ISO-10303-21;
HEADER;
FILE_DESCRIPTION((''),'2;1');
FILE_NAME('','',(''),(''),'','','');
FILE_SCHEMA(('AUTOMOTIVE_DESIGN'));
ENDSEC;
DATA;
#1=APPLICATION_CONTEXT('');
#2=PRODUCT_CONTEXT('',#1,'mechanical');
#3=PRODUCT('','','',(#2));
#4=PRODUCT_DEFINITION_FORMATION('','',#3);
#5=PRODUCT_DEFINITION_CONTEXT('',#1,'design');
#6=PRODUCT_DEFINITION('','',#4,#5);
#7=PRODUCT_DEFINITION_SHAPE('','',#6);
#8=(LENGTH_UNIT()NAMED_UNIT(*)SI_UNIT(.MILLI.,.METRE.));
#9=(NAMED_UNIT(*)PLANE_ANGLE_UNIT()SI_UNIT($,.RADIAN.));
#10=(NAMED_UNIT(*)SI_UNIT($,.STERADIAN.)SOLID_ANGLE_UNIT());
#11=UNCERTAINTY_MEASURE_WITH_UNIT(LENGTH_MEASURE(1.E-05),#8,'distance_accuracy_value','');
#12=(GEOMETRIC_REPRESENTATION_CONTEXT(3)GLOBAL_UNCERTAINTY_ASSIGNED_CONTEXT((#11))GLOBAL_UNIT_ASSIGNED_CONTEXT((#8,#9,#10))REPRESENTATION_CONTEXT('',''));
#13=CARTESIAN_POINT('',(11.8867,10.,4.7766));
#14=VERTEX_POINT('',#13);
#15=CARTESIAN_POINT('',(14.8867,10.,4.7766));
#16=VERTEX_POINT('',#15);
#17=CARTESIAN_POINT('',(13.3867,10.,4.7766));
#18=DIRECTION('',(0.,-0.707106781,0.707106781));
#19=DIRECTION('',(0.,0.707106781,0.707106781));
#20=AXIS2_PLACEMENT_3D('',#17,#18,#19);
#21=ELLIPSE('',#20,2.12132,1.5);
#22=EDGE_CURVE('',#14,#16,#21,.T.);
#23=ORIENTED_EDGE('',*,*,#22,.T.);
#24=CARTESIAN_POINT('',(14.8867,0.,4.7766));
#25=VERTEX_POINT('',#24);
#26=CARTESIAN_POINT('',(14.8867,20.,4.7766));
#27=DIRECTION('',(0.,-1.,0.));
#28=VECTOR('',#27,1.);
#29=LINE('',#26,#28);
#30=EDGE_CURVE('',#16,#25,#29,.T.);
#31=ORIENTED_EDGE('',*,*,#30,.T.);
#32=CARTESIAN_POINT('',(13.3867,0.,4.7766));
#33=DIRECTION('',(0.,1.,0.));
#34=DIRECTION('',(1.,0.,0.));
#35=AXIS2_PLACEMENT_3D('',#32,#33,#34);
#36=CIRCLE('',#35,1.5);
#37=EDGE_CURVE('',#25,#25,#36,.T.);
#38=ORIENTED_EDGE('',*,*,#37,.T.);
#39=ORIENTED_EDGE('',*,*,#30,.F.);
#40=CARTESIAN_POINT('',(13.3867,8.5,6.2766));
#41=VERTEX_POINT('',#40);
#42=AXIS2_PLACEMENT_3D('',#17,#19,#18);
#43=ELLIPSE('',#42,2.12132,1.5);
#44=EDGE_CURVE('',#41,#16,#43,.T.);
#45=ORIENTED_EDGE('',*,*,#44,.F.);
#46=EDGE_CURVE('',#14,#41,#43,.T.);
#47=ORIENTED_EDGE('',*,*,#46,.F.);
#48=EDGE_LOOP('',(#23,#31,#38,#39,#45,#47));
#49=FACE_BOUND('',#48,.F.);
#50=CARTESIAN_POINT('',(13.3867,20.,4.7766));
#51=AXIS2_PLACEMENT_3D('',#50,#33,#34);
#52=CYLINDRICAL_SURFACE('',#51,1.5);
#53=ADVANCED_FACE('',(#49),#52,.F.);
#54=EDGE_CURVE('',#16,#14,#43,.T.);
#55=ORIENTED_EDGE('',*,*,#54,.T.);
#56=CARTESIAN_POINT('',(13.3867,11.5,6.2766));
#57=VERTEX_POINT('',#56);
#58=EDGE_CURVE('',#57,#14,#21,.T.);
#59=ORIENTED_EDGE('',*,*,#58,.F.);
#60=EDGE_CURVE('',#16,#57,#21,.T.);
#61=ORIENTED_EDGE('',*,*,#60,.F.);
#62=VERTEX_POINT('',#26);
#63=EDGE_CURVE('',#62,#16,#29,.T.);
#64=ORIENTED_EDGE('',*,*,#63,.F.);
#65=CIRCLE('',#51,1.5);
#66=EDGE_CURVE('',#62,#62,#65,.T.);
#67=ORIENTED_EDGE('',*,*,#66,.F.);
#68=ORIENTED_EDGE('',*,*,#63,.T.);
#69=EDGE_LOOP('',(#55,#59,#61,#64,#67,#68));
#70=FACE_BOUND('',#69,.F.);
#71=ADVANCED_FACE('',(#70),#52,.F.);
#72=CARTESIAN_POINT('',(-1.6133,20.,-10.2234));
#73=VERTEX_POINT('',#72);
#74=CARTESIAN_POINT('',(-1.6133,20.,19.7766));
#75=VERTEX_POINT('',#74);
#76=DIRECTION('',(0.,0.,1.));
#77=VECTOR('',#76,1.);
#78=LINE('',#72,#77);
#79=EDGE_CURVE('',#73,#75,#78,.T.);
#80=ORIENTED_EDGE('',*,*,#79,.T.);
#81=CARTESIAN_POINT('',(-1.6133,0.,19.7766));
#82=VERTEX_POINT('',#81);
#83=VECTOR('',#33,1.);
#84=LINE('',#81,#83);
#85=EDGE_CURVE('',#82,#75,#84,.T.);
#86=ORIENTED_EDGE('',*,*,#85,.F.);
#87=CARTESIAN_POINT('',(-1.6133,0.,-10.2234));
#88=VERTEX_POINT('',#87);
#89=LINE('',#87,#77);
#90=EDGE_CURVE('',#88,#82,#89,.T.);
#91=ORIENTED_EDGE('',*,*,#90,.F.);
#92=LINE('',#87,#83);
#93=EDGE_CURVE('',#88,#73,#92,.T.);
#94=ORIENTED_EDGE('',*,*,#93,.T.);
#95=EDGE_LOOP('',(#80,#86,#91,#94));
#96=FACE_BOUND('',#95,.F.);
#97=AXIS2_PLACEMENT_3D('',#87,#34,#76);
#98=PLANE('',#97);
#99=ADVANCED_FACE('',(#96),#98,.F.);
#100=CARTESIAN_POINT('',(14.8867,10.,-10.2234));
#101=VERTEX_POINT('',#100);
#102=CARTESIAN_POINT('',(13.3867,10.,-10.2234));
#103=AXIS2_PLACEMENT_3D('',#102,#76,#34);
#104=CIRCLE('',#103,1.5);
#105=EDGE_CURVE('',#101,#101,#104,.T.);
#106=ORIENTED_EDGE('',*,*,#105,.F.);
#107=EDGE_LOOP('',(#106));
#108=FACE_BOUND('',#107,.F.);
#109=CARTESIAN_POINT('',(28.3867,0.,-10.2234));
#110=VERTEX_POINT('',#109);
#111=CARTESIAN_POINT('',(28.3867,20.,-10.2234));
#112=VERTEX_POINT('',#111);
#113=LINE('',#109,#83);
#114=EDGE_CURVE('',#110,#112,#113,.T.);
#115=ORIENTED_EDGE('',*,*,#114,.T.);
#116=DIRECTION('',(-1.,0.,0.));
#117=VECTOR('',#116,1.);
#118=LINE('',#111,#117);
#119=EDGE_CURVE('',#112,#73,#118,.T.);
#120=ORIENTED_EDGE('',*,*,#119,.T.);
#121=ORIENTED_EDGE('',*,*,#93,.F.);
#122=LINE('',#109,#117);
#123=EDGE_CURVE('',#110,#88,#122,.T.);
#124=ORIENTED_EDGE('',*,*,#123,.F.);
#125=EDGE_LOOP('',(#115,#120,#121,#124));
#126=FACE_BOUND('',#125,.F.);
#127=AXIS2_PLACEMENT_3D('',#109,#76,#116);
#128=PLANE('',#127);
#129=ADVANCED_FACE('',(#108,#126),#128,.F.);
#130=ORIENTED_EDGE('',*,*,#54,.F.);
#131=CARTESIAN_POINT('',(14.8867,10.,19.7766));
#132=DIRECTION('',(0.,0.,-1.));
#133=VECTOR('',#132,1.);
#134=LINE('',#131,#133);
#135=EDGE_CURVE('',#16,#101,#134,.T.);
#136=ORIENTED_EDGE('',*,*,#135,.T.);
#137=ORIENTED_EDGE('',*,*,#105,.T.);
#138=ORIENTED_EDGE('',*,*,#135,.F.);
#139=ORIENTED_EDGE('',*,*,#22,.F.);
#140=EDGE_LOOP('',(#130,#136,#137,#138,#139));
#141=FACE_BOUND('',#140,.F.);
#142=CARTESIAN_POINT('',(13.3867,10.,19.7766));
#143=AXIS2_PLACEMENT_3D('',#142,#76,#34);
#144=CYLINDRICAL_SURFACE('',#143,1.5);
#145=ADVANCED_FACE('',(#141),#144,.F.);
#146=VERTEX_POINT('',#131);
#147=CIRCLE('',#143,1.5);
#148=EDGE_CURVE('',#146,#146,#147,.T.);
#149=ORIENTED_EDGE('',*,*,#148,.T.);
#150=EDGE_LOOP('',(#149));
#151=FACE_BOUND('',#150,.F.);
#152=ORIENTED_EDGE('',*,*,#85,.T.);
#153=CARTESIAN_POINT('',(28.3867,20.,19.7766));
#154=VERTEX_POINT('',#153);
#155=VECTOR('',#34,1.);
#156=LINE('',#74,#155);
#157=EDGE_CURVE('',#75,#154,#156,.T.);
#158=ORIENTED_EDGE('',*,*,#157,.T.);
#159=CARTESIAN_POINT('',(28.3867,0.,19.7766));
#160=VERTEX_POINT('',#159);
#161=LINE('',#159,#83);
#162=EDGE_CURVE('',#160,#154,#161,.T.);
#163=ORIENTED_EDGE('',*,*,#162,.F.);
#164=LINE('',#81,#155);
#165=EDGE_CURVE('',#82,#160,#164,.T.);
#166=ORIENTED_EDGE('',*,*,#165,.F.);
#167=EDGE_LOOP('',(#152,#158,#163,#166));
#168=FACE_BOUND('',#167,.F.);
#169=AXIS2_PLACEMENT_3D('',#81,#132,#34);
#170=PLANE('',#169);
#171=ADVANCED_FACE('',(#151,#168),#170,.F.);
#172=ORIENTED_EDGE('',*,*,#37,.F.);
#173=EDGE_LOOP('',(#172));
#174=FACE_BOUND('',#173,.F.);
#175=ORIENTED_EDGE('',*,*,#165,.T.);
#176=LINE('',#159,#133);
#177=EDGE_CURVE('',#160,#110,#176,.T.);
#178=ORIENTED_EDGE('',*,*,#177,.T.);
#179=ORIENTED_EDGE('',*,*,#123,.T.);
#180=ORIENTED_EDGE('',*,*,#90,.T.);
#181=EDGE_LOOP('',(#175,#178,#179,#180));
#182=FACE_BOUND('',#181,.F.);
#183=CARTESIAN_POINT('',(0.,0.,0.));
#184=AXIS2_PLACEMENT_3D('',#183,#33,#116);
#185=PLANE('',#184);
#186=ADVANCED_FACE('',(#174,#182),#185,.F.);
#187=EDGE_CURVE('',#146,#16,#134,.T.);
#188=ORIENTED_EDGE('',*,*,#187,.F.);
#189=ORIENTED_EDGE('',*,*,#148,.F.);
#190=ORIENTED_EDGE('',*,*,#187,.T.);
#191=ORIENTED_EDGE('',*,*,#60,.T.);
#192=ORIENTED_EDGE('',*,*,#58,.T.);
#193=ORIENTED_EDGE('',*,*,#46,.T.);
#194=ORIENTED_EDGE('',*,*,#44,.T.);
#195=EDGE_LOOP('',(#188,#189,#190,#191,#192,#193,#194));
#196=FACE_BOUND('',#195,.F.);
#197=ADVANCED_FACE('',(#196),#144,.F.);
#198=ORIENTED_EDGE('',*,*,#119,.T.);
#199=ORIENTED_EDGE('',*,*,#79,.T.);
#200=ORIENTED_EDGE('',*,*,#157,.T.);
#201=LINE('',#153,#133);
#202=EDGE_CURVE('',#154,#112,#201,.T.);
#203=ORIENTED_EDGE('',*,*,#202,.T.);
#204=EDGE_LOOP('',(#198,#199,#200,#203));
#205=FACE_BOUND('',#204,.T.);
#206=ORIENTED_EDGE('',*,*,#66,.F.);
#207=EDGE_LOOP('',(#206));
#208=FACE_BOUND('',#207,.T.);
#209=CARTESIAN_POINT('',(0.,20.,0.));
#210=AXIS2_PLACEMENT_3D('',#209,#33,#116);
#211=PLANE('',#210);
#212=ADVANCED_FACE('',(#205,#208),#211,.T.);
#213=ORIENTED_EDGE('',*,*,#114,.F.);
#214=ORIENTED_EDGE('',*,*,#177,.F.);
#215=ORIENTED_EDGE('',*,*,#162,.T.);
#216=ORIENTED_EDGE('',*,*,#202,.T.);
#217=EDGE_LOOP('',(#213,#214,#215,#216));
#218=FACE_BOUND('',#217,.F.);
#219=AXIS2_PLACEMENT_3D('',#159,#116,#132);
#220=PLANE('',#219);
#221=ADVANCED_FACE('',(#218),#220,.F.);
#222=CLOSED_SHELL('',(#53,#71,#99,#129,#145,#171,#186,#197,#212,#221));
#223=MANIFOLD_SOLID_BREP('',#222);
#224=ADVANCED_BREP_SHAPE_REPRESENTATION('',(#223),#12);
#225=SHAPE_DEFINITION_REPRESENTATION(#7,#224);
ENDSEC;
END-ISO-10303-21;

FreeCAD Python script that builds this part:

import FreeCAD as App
import Part
import Sketcher
from FreeCAD import Vector
Q = App.Units.Quantity

doc = App.newDocument("Part")
body = doc.addObject("PartDesign::Body", "Body")

# Sketch on XZ plane
sketch1 = body.newObject("Sketcher::SketchObject", "Sketch")
sketch1.AttachmentSupport = (doc.getObject("XZ_Plane"), [""])
sketch1.MapMode = "FlatFace"
sketch1.addGeometry([
    Part.LineSegment(Vector(-2, -10, 0), Vector(-2, 20, 0)),
    Part.LineSegment(Vector(-2, 20, 0), Vector(28, 20, 0)),
    Part.LineSegment(Vector(28, 20, 0), Vector(28, -10, 0)),
    Part.LineSegment(Vector(28, -10, 0), Vector(-2, -10, 0)),
], False)
sketch1.addConstraint([
    Sketcher.Constraint("Coincident", 0, 2, 1, 1),
    Sketcher.Constraint("Coincident", 1, 2, 2, 1),
    Sketcher.Constraint("Coincident", 2, 2, 3, 1),
    Sketcher.Constraint("Coincident", 3, 2, 0, 1),
    Sketcher.Constraint("Vertical", 0),
    Sketcher.Constraint("Horizontal", 1),
    Sketcher.Constraint("Vertical", 2),
    Sketcher.Constraint("Horizontal", 3),
    Sketcher.Constraint("Equal", 3, 0),
    Sketcher.Constraint("DistanceX", 1, 1, 1, 2, Q("30 mm")),
    Sketcher.Constraint("DistanceX", 0, 2, -1, 1, Q("1.6133 mm")),
    Sketcher.Constraint("DistanceY", -1, 1, 0, 2, Q("19.7766 mm")),
])
pad1 = body.newObject("PartDesign::Pad", "Pad")
pad1.Profile = sketch1
pad1.Length = 20
pad1.Reversed = True

# Sketch on XY plane
sketch2 = body.newObject("Sketcher::SketchObject", "Sketch001")
sketch2.AttachmentSupport = (doc.getObject("XY_Plane"), [""])
sketch2.MapMode = "FlatFace"
sketch2.AttachmentOffset = App.Placement(Vector(0, 0, 19.7766), App.Rotation())
sketch2.addGeometry(Part.Circle(Vector(13.4, 10, 0), Vector(0, 0, 1), 1.5), False)
sketch2.addConstraint([
    Sketcher.Constraint("Diameter", 0, Q("3 mm")),
    Sketcher.Constraint("DistanceY", -1, 1, 0, 3, Q("10 mm")),
    Sketcher.Constraint("DistanceX", -1, 1, 0, 3, Q("13.3867 mm")),
])
pocket1 = body.newObject("PartDesign::Pocket", "Pocket")
pocket1.Profile = sketch2
pocket1.Length = 500

# Sketch on XZ plane
sketch3 = body.newObject("Sketcher::SketchObject", "Sketch002")
sketch3.AttachmentSupport = (doc.getObject("XZ_Plane"), [""])
sketch3.MapMode = "FlatFace"
sketch3.AttachmentOffset = App.Placement(Vector(0, 0, -20), App.Rotation())
sketch3.addGeometry(Part.Circle(Vector(13.4, 4.8, 0), Vector(0, 0, 1), 1.5), False)
sketch3.addConstraint([
    Sketcher.Constraint("Diameter", 0, Q("3 mm")),
    Sketcher.Constraint("DistanceX", -1, 1, 0, 3, Q("13.3867 mm")),
    Sketcher.Constraint("DistanceY", -1, 1, 0, 3, Q("4.7766 mm")),
])
pocket2 = body.newObject("PartDesign::Pocket", "Pocket001")
pocket2.Profile = sketch3
pocket2.Length = 500
pocket2.Reversed = True

doc.recompute()
